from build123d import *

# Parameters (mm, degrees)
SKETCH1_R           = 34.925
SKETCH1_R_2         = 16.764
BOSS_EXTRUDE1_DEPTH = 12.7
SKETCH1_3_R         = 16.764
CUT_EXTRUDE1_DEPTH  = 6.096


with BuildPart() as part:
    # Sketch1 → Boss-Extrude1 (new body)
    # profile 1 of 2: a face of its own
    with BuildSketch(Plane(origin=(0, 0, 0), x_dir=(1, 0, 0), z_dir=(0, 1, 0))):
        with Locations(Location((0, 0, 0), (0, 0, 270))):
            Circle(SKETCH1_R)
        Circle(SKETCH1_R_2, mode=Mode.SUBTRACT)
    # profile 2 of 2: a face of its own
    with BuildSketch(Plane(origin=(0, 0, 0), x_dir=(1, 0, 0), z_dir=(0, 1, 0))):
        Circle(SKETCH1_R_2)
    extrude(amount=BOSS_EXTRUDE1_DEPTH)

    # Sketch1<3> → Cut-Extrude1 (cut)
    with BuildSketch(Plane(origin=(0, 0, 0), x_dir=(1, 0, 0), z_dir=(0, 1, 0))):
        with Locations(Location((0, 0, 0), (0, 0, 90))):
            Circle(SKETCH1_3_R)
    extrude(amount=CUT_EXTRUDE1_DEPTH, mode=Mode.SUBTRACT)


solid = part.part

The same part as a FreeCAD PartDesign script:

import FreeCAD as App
import Part
import Sketcher
Q = App.Units.Quantity

doc = App.newDocument("Part")
params = doc.addObject("Spreadsheet::Sheet", "Params")
for row, (alias, value) in enumerate([
    ("sketch1_diameter", "2.75 in"),
    ("pad1_length", "0.5 in"),
    ("sketch2_diameter", "1.32 in"),
    ("pocket1_length", "0.24 in"),
], start=1):
    params.set(f"A{row}", alias)
    params.set(f"B{row}", "=" + value)
    params.setAlias(f"B{row}", alias)

body = doc.addObject("PartDesign::Body", "Body")

# Sketch on XZ plane
sketch1 = doc.addObject("Sketcher::SketchObject", "Sketch")
body.addObject(sketch1)
sketch1.AttachmentSupport = (doc.XZ_Plane, [""])
sketch1.MapMode = "FlatFace"
sketch1.addGeometry(Part.Circle(App.Vector(0, 0, 0), App.Vector(0, 0, 1), 35), False)
sketch1.addConstraint(Sketcher.Constraint("Coincident", 0, 3, -1, 1))
sketch1.addConstraint(Sketcher.Constraint("Diameter", 0, Q("2.75 in")))
sketch1.setExpression("Constraints[1]", "Params.sketch1_diameter")
pad1 = doc.addObject("PartDesign::Pad", "Pad")
body.addObject(pad1)
pad1.Profile = sketch1
pad1.setExpression("Length", "Params.pad1_length")
pad1.Reversed = True

# Sketch on XZ plane
sketch2 = doc.addObject("Sketcher::SketchObject", "Sketch001")
body.addObject(sketch2)
sketch2.AttachmentSupport = (doc.XZ_Plane, [""])
sketch2.MapMode = "FlatFace"
sketch2.addGeometry(Part.Circle(App.Vector(0, 0, 0), App.Vector(0, 0, 1), 17), False)
sketch2.addConstraint(Sketcher.Constraint("Coincident", 0, 3, -1, 1))
sketch2.addConstraint(Sketcher.Constraint("Diameter", 0, Q("1.32 in")))
sketch2.setExpression("Constraints[1]", "Params.sketch2_diameter")
pocket1 = doc.addObject("PartDesign::Pocket", "Pocket")
body.addObject(pocket1)
pocket1.Profile = sketch2
pocket1.setExpression("Length", "Params.pocket1_length")

doc.recompute()
